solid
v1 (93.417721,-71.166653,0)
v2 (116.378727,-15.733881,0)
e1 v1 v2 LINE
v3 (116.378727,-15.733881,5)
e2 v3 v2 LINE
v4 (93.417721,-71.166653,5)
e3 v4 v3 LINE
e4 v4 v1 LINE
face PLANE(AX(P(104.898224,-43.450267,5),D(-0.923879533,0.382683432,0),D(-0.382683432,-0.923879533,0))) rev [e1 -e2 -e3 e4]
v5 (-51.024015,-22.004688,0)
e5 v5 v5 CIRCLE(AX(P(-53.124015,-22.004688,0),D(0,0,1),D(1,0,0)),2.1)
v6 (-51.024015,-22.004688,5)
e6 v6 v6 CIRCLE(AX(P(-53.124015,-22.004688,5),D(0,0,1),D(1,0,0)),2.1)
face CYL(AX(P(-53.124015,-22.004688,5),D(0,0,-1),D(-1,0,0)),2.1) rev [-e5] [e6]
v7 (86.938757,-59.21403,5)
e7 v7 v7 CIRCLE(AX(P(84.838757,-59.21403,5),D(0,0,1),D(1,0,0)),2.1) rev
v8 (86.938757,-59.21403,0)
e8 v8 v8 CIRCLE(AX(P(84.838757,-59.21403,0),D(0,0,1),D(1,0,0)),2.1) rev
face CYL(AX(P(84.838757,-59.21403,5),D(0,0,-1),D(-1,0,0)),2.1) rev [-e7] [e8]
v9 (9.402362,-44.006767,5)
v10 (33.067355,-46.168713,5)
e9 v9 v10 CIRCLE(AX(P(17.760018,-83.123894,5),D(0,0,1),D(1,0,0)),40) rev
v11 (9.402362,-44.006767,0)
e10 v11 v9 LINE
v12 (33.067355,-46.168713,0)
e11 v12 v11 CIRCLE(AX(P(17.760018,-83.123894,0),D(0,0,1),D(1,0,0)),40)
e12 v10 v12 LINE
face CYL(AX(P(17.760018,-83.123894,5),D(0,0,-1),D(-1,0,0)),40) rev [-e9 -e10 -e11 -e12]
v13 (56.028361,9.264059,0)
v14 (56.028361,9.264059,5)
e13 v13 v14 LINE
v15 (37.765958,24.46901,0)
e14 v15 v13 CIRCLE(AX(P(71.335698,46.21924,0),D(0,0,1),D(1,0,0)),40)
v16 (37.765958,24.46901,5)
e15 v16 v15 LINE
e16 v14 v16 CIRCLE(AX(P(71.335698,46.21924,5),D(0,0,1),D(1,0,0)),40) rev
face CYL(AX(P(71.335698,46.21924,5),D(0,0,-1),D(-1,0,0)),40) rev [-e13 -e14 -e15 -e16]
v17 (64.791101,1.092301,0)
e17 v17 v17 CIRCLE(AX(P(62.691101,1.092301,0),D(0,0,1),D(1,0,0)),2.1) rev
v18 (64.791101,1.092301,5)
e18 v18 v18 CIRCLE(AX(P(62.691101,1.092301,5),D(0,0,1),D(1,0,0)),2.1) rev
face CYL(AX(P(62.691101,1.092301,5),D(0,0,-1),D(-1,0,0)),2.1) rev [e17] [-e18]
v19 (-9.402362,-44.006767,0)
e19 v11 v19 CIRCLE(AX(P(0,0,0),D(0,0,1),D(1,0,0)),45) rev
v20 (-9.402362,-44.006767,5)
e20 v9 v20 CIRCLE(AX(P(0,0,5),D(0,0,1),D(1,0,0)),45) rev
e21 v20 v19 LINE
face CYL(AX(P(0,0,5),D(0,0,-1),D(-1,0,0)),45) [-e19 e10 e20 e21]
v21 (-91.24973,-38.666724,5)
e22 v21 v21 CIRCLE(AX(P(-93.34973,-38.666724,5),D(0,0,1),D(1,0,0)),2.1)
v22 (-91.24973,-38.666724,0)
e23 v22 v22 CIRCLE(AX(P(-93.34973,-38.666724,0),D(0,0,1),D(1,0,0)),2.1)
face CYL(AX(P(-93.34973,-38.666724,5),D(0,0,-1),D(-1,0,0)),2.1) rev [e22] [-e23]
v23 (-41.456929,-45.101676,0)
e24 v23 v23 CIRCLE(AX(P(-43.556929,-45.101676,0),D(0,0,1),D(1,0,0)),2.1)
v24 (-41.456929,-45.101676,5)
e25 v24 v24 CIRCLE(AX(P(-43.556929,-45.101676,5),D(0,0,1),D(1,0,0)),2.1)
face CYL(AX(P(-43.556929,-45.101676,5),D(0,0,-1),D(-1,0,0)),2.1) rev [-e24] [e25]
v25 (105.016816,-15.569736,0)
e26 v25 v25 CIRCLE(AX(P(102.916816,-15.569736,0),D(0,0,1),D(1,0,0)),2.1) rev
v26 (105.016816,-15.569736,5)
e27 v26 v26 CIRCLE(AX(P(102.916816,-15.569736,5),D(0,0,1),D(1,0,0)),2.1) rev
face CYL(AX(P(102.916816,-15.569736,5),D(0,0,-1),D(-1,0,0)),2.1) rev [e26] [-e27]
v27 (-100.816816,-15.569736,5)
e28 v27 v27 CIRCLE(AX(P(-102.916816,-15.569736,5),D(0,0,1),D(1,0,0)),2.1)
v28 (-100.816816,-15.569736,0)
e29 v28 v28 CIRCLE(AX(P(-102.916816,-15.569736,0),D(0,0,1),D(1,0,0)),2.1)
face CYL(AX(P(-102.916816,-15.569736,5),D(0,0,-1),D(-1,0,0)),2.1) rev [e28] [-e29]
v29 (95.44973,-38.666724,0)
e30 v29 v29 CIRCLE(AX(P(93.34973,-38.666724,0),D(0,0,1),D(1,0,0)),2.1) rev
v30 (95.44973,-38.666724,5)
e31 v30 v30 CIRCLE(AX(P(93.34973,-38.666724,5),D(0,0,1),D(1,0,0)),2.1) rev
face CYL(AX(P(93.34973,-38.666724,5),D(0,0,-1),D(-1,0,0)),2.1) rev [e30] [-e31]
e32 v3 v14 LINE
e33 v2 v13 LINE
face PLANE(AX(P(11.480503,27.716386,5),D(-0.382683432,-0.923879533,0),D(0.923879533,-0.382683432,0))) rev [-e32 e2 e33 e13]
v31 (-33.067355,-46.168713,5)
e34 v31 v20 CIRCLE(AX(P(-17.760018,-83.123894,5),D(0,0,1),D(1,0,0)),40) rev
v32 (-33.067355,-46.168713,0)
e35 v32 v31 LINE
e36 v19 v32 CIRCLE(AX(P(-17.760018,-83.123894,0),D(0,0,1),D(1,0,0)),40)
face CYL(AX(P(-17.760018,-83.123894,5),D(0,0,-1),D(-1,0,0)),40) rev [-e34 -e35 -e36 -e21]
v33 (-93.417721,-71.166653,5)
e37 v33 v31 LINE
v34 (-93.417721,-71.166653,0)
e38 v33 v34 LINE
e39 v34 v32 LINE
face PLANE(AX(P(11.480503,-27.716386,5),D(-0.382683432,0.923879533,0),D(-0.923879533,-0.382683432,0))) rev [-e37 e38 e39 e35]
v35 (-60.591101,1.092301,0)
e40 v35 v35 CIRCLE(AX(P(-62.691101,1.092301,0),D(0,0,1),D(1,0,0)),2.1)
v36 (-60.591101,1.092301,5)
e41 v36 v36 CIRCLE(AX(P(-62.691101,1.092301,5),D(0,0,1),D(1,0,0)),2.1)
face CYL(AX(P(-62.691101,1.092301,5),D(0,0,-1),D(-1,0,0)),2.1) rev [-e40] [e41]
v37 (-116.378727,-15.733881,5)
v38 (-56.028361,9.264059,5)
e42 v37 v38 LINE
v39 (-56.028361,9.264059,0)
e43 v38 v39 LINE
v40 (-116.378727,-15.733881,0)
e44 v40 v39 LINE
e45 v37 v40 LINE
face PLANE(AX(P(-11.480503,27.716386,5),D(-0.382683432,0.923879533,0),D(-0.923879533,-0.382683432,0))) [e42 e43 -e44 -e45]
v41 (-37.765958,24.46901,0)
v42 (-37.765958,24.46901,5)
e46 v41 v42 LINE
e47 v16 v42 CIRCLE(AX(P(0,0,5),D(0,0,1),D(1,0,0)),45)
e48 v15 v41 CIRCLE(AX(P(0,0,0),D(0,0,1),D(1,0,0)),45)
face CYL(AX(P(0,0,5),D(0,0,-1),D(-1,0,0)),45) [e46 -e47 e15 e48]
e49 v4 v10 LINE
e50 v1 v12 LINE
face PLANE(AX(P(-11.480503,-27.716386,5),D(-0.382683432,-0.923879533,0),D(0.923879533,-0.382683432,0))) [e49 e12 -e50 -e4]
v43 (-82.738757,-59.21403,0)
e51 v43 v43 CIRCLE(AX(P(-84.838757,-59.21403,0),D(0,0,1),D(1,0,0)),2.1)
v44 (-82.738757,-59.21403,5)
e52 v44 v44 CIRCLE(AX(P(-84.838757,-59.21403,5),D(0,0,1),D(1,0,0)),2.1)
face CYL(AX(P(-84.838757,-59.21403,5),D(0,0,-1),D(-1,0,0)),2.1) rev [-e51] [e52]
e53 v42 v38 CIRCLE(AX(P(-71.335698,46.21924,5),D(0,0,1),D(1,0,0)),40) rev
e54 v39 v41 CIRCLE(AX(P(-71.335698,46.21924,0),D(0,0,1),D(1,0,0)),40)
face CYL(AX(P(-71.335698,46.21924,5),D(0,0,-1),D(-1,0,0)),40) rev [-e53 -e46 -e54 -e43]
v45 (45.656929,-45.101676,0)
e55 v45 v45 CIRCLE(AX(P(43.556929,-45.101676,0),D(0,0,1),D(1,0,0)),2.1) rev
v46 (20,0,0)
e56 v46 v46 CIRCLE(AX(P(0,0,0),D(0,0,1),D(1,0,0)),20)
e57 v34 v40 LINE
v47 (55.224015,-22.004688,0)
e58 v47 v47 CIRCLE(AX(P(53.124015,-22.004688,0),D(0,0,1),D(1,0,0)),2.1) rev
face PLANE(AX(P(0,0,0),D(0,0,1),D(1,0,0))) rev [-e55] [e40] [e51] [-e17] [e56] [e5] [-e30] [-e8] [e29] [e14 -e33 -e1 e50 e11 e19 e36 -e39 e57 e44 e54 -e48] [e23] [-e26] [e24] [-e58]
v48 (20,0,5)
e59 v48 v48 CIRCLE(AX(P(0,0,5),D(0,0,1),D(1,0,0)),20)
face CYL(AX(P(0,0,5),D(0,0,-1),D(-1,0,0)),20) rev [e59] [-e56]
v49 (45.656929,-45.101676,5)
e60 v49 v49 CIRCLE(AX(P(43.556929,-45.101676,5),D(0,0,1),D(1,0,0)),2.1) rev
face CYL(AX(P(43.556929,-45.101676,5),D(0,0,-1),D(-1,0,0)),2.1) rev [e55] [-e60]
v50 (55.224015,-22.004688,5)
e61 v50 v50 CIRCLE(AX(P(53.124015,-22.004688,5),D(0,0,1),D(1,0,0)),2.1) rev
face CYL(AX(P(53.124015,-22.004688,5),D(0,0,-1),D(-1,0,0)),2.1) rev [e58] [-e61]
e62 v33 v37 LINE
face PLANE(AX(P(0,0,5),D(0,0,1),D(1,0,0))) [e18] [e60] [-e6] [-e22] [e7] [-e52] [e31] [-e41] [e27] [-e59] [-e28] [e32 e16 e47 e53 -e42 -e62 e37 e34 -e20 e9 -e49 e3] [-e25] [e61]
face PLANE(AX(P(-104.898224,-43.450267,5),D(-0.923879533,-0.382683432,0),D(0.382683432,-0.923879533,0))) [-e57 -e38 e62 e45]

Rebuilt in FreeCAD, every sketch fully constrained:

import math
import FreeCAD as App
import Part
import Sketcher
from FreeCAD import Vector
Q = App.Units.Quantity


def edges_at(feature, points):
    """Names of the edges that pass closest to the given points."""
    edges = feature.Shape.Edges
    near = lambda p: min(range(len(edges)), key=lambda i: edges[i].distToShape(Part.Vertex(*p))[0])
    return sorted({f"Edge{near(p) + 1}" for p in points})

doc = App.newDocument("Part")
params = doc.addObject("Spreadsheet::Sheet", "Params")
for row, (alias, value) in enumerate([
    ("sketch1_diameter", "40 mm"),
    ("sketch1_radius", "45 mm"),
    ("sketch1_diameter2", "4.2 mm"),
    ("sketch1_length", "60 mm"),
    ("sketch1_length2", "80 mm"),
    ("pad1_length", "5 mm"),
    ("fillet_radius", "40 mm"),
], start=1):
    params.set(f"A{row}", alias)
    params.set(f"B{row}", "=" + value)
    params.setAlias(f"B{row}", alias)

body = doc.addObject("PartDesign::Body", "Body")

# Sketch on XY plane
sketch1 = body.newObject("Sketcher::SketchObject", "Sketch")
sketch1.AttachmentSupport = (doc.getObject("XY_Plane"), [""])
sketch1.MapMode = "FlatFace"
sketch1.addGeometry([
    Part.LineSegment(Vector(-116.378727, -15.733881, 0), Vector(-93.417721, -71.166653, 0)),  # 0
    Part.LineSegment(Vector(-93.417721, -71.166653, 0), Vector(-19.507359, -40.551979, 0)),  # 1
    Part.ArcOfCircle(Part.Circle(Vector(0, 0, 0), Vector(0, 0, 1), 45), math.radians(-115.689685), math.radians(-64.310315)),  # 2
    Part.LineSegment(Vector(19.507359, -40.551979, 0), Vector(93.417721, -71.166653, 0)),  # 3
    Part.LineSegment(Vector(93.417721, -71.166653, 0), Vector(116.378727, -15.733881, 0)),  # 4
    Part.LineSegment(Vector(116.378727, -15.733881, 0), Vector(42.468365, 14.880793, 0)),  # 5
    Part.ArcOfCircle(Part.Circle(Vector(0, 0, 0), Vector(0, 0, 1), 45), math.radians(19.310315), math.radians(160.689685)),  # 6
    Part.LineSegment(Vector(-42.468365, 14.880793, 0), Vector(-116.378727, -15.733881, 0)),  # 7
    Part.Circle(Vector(84.838757, -59.21403, 0), Vector(0, 0, 1), 2.1),  # 8
    Part.Circle(Vector(43.556929, -45.101676, 0), Vector(0, 0, 1), 2.1),  # 9
    Part.Circle(Vector(93.34973, -38.666724, 0), Vector(0, 0, 1), 2.1),  # 10
    Part.Circle(Vector(53.124015, -22.004688, 0), Vector(0, 0, 1), 2.1),  # 11
    Part.Circle(Vector(-43.556929, -45.101676, 0), Vector(0, 0, 1), 2.1),  # 12
    Part.Circle(Vector(-84.838757, -59.21403, 0), Vector(0, 0, 1), 2.1),  # 13
    Part.Circle(Vector(-93.34973, -38.666724, 0), Vector(0, 0, 1), 2.1),  # 14
    Part.Circle(Vector(-53.124015, -22.004688, 0), Vector(0, 0, 1), 2.1),  # 15
    Part.Circle(Vector(102.916816, -15.569736, 0), Vector(0, 0, 1), 2.1),  # 16
    Part.Circle(Vector(62.691101, 1.092301, 0), Vector(0, 0, 1), 2.1),  # 17
    Part.Circle(Vector(-102.916816, -15.569736, 0), Vector(0, 0, 1), 2.1),  # 18
    Part.Circle(Vector(0, 0, 0), Vector(0, 0, 1), 20),  # 19
    Part.Circle(Vector(-62.691101, 1.092301, 0), Vector(0, 0, 1), 2.1),  # 20
], False)
sketch1.addConstraint([
    Sketcher.Constraint("Coincident", 0, 2, 1, 1),
    Sketcher.Constraint("Coincident", 1, 2, 2, 1),
    Sketcher.Constraint("Coincident", 2, 2, 3, 1),
    Sketcher.Constraint("Coincident", 3, 2, 4, 1),
    Sketcher.Constraint("Coincident", 4, 2, 5, 1),
    Sketcher.Constraint("Coincident", 5, 2, 6, 1),
    Sketcher.Constraint("Coincident", 6, 2, 7, 1),
    Sketcher.Constraint("Coincident", 7, 2, 0, 1),
    Sketcher.Constraint("Coincident", 2, 3, -1, 1),
    Sketcher.Constraint("Coincident", 6, 3, -1, 1),
    Sketcher.Constraint("Coincident", 19, 3, -1, 1),
    Sketcher.Constraint("Equal", 2, 6),
    Sketcher.Constraint("Equal", 8, 9),
    Sketcher.Constraint("Equal", 9, 10),
    Sketcher.Constraint("Equal", 10, 11),
    Sketcher.Constraint("Equal", 11, 12),
    Sketcher.Constraint("Equal", 12, 13),
    Sketcher.Constraint("Equal", 13, 14),
    Sketcher.Constraint("Equal", 14, 15),
    Sketcher.Constraint("Equal", 15, 16),
    Sketcher.Constraint("Equal", 16, 17),
    Sketcher.Constraint("Equal", 17, 18),
    Sketcher.Constraint("Equal", 18, 20),
    Sketcher.Constraint("Symmetric", 9, 3, 12, 3, -2),
    Sketcher.Constraint("Symmetric", 8, 3, 13, 3, -2),
    Sketcher.Constraint("Symmetric", 10, 3, 14, 3, -2),
    Sketcher.Constraint("Symmetric", 11, 3, 15, 3, -2),
    Sketcher.Constraint("Symmetric", 16, 3, 18, 3, -2),
    Sketcher.Constraint("Symmetric", 17, 3, 20, 3, -2),
    Sketcher.Constraint("Symmetric", 0, 2, 3, 2, -2),
    Sketcher.Constraint("Symmetric", 4, 2, 7, 2, -2),
    Sketcher.Constraint("Perpendicular", 0, 1),
    Sketcher.Constraint("Perpendicular", 3, 4),
    Sketcher.Constraint("Perpendicular", 4, 5),
    Sketcher.Constraint("Parallel", 1, 7),
    Sketcher.Constraint("Equal", 3, 5),
    Sketcher.Constraint("Diameter", 19, 40.0),
    Sketcher.Constraint("Radius", 2, 45.0),
    Sketcher.Constraint("Diameter", 8, 4.2),
    Sketcher.Constraint("Distance", 0, 60.0),
    Sketcher.Constraint("Distance", 1, 80.0),
    Sketcher.Constraint("Angle", 0, Q("-67.5 deg")),
    Sketcher.Constraint("DistanceX", -1, 1, 17, 3, 62.691101),
    Sketcher.Constraint("DistanceY", -1, 1, 17, 3, 1.092301),
    Sketcher.Constraint("DistanceX", 9, 3, 10, 3, 49.792801),
    Sketcher.Constraint("DistanceX", 11, 3, 16, 3, 49.792801),
    Sketcher.Constraint("DistanceY", 8, 3, -1, 1, 59.21403),
    Sketcher.Constraint("DistanceX", -1, 1, 9, 3, 43.556929),
    Sketcher.Constraint("DistanceY", 9, 3, 10, 3, 6.434952),
    Sketcher.Constraint("DistanceY", 9, 3, 11, 3, 23.096988),
    Sketcher.Constraint("DistanceX", 11, 3, 8, 3, 31.714742),
    Sketcher.Constraint("DistanceY", 10, 3, 16, 3, 23.096988),
    Sketcher.Constraint("DistanceY", 11, 3, 17, 3, 23.096988),
    Sketcher.Constraint("DistanceX", 16, 3, 4, 2, 13.461911),
])
sketch1.setExpression("Constraints[36]", "Params.sketch1_diameter")
sketch1.setExpression("Constraints[37]", "Params.sketch1_radius")
sketch1.setExpression("Constraints[38]", "Params.sketch1_diameter2")
sketch1.setExpression("Constraints[39]", "Params.sketch1_length")
sketch1.setExpression("Constraints[40]", "Params.sketch1_length2")
pad1 = body.newObject("PartDesign::Pad", "Pad")
pad1.Profile = sketch1
pad1.setExpression("Length", "Params.pad1_length")
doc.recompute()

fillet = body.newObject("PartDesign::Fillet", "Fillet")
fillet.Base = (pad1, edges_at(pad1, [
    (-19.507, -40.552, 2.5),
    (-42.468, 14.881, 2.5),
    (42.468, 14.881, 2.5),
    (19.507, -40.552, 2.5),
]))
fillet.setExpression("Radius", "Params.fillet_radius")

doc.recompute()
